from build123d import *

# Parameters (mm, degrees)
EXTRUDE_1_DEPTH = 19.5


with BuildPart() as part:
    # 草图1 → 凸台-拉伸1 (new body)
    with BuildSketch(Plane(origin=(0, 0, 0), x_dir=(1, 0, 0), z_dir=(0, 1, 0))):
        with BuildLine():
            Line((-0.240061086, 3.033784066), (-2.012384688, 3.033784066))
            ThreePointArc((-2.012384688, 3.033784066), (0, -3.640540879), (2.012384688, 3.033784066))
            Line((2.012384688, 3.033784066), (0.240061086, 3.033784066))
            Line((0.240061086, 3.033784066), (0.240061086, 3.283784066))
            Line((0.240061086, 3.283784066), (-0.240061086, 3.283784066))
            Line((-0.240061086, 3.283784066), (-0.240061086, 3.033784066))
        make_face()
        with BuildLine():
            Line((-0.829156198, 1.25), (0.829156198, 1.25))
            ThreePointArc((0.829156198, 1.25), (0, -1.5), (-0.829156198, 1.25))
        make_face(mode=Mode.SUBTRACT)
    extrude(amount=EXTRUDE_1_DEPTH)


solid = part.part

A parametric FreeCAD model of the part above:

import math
import FreeCAD as App
import Part
import Sketcher
from FreeCAD import Vector
Q = App.Units.Quantity

doc = App.newDocument("Part")
body = doc.addObject("PartDesign::Body", "Body")

# Sketch on XZ plane
sketch1 = body.newObject("Sketcher::SketchObject", "Sketch")
sketch1.AttachmentSupport = (doc.getObject("XZ_Plane"), [""])
sketch1.MapMode = "FlatFace"
sketch1.addGeometry([
    Part.LineSegment(Vector(-0.24, -3.03, 0), Vector(-2.01, -3.03, 0)),  # 0
    Part.ArcOfCircle(Part.Circle(Vector(0, 0, 0), Vector(0, 0, 1), 3.64), math.radians(-56), math.radians(236)),  # 1
    Part.LineSegment(Vector(2.01, -3.03, 0), Vector(0.24, -3.03, 0)),  # 2
    Part.LineSegment(Vector(0.24, -3.03, 0), Vector(0.24, -3.28, 0)),  # 3
    Part.LineSegment(Vector(0.24, -3.28, 0), Vector(-0.24, -3.28, 0)),  # 4
    Part.LineSegment(Vector(-0.24, -3.28, 0), Vector(-0.24, -3.03, 0)),  # 5
    Part.ArcOfCircle(Part.Circle(Vector(0, 0, 0), Vector(0, 0, 1), 1.5), math.radians(-56), math.radians(236)),  # 6
    Part.LineSegment(Vector(-0.83, -1.25, 0), Vector(0.83, -1.25, 0)),  # 7
], False)
sketch1.addConstraint([
    Sketcher.Constraint("Coincident", 0, 2, 1, 2),
    Sketcher.Constraint("Coincident", 1, 1, 2, 1),
    Sketcher.Constraint("Coincident", 2, 2, 3, 1),
    Sketcher.Constraint("Coincident", 3, 2, 4, 1),
    Sketcher.Constraint("Coincident", 4, 2, 5, 1),
    Sketcher.Constraint("Coincident", 5, 2, 0, 1),
    Sketcher.Constraint("Coincident", 6, 1, 7, 2),
    Sketcher.Constraint("Coincident", 7, 1, 6, 2),
    Sketcher.Constraint("Horizontal", 0),
    Sketcher.Constraint("Horizontal", 2),
    Sketcher.Constraint("Vertical", 3),
    Sketcher.Constraint("Horizontal", 4),
    Sketcher.Constraint("Vertical", 5),
    Sketcher.Constraint("Horizontal", 7),
    Sketcher.Constraint("Coincident", 1, 3, -1, 1),
    Sketcher.Constraint("Coincident", 6, 3, -1, 1),
    Sketcher.Constraint("Symmetric", 2, 2, 5, 2, -2),
    Sketcher.Constraint("Radius", 6, Q("1.5 mm")),
    Sketcher.Constraint("DistanceY", 3, 2, 3, 1, Q("0.25 mm")),
    Sketcher.Constraint("DistanceY", 6, 1, -1, 1, Q("1.25 mm")),
    Sketcher.Constraint("Radius", 1, Q("3.640541 mm")),
    Sketcher.Constraint("DistanceX", 0, 2, 0, 1, Q("1.772324 mm")),
    Sketcher.Constraint("DistanceX", 4, 2, 4, 1, Q("0.480122 mm")),
])
pad1 = body.newObject("PartDesign::Pad", "Pad")
pad1.Profile = sketch1
pad1.Length = 19.5
pad1.Reversed = True

doc.recompute()
